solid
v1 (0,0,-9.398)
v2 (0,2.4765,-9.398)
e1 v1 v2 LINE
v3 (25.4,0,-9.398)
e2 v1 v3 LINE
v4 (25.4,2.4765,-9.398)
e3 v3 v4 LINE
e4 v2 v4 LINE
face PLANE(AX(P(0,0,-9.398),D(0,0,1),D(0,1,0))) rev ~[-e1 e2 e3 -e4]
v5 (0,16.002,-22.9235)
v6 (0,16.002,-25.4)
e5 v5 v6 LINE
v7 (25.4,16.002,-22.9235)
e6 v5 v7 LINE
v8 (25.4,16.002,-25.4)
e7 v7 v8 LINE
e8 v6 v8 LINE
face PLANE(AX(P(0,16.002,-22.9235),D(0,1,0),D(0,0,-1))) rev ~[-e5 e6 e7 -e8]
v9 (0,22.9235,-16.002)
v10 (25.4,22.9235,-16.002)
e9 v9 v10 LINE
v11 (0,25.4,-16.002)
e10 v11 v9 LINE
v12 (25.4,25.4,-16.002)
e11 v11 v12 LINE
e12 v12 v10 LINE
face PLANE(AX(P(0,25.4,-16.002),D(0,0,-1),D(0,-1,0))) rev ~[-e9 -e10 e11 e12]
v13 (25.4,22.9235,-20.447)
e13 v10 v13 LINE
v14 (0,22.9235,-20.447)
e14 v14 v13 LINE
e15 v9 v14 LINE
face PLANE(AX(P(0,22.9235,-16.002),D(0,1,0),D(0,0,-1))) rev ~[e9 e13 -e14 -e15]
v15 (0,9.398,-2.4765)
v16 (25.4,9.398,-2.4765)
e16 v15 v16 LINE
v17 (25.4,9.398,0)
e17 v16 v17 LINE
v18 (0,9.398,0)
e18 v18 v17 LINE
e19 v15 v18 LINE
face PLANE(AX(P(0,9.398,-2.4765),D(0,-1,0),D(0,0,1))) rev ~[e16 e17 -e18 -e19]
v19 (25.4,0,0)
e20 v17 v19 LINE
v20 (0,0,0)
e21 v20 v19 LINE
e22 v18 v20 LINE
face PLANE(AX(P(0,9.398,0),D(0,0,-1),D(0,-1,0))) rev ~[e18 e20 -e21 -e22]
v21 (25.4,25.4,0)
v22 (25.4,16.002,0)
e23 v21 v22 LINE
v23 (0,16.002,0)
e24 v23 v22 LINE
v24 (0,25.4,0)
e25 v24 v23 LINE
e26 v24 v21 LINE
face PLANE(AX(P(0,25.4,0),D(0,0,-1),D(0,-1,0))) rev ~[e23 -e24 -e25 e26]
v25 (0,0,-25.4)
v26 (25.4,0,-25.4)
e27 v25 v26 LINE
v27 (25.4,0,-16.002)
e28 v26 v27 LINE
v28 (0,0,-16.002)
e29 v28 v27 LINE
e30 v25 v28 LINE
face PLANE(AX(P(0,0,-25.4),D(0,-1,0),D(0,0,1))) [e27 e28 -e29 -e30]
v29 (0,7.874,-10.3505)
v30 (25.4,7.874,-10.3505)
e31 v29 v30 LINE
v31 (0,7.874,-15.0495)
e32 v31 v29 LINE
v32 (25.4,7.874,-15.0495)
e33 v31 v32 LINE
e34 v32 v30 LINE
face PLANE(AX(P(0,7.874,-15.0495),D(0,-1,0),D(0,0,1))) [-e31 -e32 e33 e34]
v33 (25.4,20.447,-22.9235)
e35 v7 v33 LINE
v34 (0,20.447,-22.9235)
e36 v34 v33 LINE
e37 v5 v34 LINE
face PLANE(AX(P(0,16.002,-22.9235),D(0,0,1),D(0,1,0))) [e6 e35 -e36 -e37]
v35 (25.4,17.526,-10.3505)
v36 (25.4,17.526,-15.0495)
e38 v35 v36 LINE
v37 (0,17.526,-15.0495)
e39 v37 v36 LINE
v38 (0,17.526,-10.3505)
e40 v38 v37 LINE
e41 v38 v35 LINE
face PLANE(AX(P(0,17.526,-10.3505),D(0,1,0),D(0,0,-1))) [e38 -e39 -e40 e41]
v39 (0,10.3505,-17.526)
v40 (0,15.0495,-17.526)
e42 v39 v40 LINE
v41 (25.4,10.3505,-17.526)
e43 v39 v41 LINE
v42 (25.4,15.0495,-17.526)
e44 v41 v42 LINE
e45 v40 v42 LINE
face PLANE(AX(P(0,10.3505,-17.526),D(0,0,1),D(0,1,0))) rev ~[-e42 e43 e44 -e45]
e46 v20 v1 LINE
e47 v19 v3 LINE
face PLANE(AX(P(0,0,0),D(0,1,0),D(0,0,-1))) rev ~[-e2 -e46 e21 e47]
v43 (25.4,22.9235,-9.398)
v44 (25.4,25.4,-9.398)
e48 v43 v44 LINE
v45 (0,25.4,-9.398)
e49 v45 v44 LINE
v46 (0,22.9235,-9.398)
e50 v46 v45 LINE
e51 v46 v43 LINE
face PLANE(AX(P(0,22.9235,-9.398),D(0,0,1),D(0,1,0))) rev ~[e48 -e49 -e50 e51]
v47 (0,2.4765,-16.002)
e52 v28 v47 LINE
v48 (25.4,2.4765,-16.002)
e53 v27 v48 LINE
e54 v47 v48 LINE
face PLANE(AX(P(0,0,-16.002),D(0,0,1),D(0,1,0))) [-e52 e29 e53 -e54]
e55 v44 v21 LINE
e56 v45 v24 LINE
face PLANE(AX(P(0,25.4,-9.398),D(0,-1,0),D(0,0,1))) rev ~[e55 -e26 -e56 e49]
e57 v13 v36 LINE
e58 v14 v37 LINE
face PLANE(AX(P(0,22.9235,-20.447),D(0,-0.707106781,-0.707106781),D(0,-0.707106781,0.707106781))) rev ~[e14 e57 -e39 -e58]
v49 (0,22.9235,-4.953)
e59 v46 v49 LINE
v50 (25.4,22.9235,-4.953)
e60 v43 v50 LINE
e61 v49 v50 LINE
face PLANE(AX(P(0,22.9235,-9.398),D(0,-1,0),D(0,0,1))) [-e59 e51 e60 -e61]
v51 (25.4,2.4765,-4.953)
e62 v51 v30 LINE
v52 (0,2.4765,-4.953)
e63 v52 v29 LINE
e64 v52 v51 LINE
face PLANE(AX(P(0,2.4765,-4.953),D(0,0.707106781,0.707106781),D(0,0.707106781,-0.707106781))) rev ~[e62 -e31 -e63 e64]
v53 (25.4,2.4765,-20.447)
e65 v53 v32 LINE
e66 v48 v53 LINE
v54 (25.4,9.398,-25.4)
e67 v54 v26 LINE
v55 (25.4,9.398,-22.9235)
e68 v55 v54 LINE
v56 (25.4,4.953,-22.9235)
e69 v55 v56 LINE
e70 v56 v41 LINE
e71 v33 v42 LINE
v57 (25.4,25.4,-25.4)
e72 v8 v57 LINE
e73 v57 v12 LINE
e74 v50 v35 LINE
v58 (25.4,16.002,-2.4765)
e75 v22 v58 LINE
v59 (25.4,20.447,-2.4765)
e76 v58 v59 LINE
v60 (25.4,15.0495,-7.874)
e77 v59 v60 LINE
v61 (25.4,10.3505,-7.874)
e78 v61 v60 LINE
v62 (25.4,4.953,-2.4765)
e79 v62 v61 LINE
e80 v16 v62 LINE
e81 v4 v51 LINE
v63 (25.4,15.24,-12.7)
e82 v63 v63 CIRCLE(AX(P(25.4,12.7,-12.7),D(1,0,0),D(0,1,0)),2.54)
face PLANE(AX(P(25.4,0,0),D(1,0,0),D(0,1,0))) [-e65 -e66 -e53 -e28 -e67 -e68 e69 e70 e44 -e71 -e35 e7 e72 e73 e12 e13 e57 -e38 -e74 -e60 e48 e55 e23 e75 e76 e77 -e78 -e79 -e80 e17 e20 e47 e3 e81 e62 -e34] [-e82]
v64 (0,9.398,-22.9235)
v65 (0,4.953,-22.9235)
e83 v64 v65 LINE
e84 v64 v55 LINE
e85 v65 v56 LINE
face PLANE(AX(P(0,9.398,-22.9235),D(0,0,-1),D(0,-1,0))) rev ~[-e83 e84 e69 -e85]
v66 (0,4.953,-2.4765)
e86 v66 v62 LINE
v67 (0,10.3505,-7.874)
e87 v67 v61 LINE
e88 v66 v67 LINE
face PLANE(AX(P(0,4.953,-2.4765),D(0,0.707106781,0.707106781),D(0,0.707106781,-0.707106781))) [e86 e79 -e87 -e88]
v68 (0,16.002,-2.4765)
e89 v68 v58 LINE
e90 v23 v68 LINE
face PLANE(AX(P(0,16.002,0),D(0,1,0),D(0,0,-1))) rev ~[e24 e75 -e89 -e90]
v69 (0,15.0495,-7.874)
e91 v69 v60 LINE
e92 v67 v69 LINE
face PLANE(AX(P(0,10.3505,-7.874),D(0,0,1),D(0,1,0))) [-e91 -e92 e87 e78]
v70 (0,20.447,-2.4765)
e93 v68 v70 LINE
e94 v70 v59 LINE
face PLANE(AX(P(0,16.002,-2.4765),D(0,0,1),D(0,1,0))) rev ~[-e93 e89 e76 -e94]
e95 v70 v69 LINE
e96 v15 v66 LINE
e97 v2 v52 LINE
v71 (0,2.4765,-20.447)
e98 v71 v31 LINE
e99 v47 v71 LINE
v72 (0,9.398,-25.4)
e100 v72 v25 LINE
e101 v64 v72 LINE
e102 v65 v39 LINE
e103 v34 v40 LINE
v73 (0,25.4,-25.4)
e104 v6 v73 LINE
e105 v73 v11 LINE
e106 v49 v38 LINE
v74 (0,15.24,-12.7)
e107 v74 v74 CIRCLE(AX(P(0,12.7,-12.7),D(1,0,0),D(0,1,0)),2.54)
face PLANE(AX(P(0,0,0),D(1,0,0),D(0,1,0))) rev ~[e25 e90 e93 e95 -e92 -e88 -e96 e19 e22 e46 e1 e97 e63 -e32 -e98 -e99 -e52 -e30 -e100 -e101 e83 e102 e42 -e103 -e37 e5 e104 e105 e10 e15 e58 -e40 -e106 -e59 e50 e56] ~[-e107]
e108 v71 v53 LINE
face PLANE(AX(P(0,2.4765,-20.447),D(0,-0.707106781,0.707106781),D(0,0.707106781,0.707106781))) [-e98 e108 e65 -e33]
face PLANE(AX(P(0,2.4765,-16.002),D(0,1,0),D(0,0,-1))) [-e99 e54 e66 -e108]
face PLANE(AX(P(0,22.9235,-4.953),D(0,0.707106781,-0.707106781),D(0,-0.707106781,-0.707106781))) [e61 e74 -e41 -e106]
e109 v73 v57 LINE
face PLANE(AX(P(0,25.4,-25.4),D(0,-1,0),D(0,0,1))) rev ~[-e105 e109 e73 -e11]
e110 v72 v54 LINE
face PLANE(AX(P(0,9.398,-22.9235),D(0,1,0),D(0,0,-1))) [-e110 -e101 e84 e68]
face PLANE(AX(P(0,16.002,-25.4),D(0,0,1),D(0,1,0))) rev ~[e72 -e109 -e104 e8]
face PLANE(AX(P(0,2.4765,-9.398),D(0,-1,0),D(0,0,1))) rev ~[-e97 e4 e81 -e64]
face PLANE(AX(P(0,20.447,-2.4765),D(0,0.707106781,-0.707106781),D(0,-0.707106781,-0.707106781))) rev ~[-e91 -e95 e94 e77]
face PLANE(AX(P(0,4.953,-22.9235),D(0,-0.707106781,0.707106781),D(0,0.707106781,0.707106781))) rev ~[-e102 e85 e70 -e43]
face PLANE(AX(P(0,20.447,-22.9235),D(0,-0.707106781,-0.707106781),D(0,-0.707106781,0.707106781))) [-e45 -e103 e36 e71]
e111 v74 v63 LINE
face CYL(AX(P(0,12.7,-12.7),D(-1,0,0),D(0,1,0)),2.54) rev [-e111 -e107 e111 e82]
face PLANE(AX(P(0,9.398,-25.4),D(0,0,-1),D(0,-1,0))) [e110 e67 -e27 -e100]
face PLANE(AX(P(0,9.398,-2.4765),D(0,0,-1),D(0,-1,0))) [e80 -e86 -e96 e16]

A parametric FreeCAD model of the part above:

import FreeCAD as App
import Part
import Sketcher
from FreeCAD import Vector
Q = App.Units.Quantity


def add_polygon(sketch, points):
    """Adds a closed chain of lines whose ends are joined by coincident constraints."""
    first, n = sketch.GeometryCount, len(points)
    for a, b in zip(points, points[1:] + points[:1]):
        sketch.addGeometry(Part.LineSegment(App.Vector(*a, 0), App.Vector(*b, 0)), False)
    for i in range(n):
        sketch.addConstraint(Sketcher.Constraint("Coincident", first + i, 2, first + (i + 1) % n, 1))

doc = App.newDocument("Part")
body = doc.addObject("PartDesign::Body", "Body")

sketch1 = body.newObject("Sketcher::SketchObject", "Sketch")
sketch1.AttachmentSupport = (doc.getObject("YZ_Plane"), [""])
sketch1.MapMode = "FlatFace"
add_polygon(sketch1, [(9.4, 0), (0, 0), (0, -9.4), (2.5, -9.4), (2.5, -5), (7.9, -10.4), (7.9, -15), (2.5, -20.4), (2.5, -16), (0, -16), (0, -25.4), (9.4, -25.4), (9.4, -22.9), (5, -22.9), (10.4, -17.5), (15, -17.5), (20.4, -22.9), (16, -22.9), (16, -25.4), (25.4, -25.4), (25.4, -16), (22.9, -16), (22.9, -20.4), (17.5, -15), (17.5, -10.4), (22.9, -5), (22.9, -9.4), (25.4, -9.4), (25.4, 0), (16, 0), (16, -2.5), (20.4, -2.5), (15, -7.9), (10.4, -7.9), (5, -2.5), (9.4, -2.5)])
sketch1.addGeometry(Part.Circle(Vector(12.7, -12.7, 0), Vector(0, 0, 1), 2.5), False)
sketch1.addConstraint([
    Sketcher.Constraint("Horizontal", 0),
    Sketcher.Constraint("Vertical", 1),
    Sketcher.Constraint("Horizontal", 2),
    Sketcher.Constraint("Vertical", 3),
    Sketcher.Constraint("Vertical", 5),
    Sketcher.Constraint("Vertical", 7),
    Sketcher.Constraint("Horizontal", 8),
    Sketcher.Constraint("Vertical", 9),
    Sketcher.Constraint("Horizontal", 10),
    Sketcher.Constraint("Vertical", 11),
    Sketcher.Constraint("Horizontal", 12),
    Sketcher.Constraint("Horizontal", 14),
    Sketcher.Constraint("Horizontal", 16),
    Sketcher.Constraint("Vertical", 17),
    Sketcher.Constraint("Horizontal", 18),
    Sketcher.Constraint("Vertical", 19),
    Sketcher.Constraint("Horizontal", 20),
    Sketcher.Constraint("Vertical", 21),
    Sketcher.Constraint("Vertical", 23),
    Sketcher.Constraint("Vertical", 25),
    Sketcher.Constraint("Horizontal", 26),
    Sketcher.Constraint("Vertical", 27),
    Sketcher.Constraint("Horizontal", 28),
    Sketcher.Constraint("Vertical", 29),
    Sketcher.Constraint("Horizontal", 30),
    Sketcher.Constraint("Horizontal", 32),
    Sketcher.Constraint("Horizontal", 34),
    Sketcher.Constraint("Vertical", 35),
    Sketcher.Constraint("Coincident", 0, 2, -1, 1),
    Sketcher.Constraint("PointOnObject", 8, 2, -2),
    Sketcher.Constraint("PointOnObject", 27, 2, -1),
    Sketcher.Constraint("Perpendicular", 4, 6),
    Sketcher.Constraint("Parallel", 6, 13),
    Sketcher.Constraint("Perpendicular", 13, 15),
    Sketcher.Constraint("Parallel", 15, 22),
    Sketcher.Constraint("Perpendicular", 22, 24),
    Sketcher.Constraint("Parallel", 24, 31),
    Sketcher.Constraint("Perpendicular", 31, 33),
    Sketcher.Constraint("Horizontal", 12, 2, 15, 2),
    Sketcher.Constraint("Horizontal", 10, 2, 17, 2),
    Sketcher.Constraint("Horizontal", 8, 2, 19, 2),
    Sketcher.Constraint("Horizontal", 6, 2, 21, 2),
    Sketcher.Constraint("Horizontal", 5, 2, 22, 2),
    Sketcher.Constraint("Horizontal", 4, 2, 23, 2),
    Sketcher.Constraint("Horizontal", 3, 2, 24, 2),
    Sketcher.Constraint("Horizontal", 2, 2, 25, 2),
    Sketcher.Constraint("Horizontal", 30, 2, 33, 2),
    Sketcher.Constraint("Vertical", 3, 2, 6, 2),
    Sketcher.Constraint("Vertical", 21, 2, 24, 2),
    Sketcher.Constraint("Vertical", 19, 2, 26, 2),
    Sketcher.Constraint("Vertical", 17, 2, 28, 2),
    Sketcher.Constraint("Vertical", 15, 2, 30, 2),
    Sketcher.Constraint("Vertical", 14, 2, 31, 2),
    Sketcher.Constraint("Vertical", 13, 2, 32, 2),
    Sketcher.Constraint("Vertical", 11, 2, 34, 2),
    Sketcher.Constraint("Equal", 12, 16),
    Sketcher.Constraint("Equal", 10, 18),
    Sketcher.Constraint("Equal", 8, 20),
    Sketcher.Constraint("Equal", 28, 1),
    Sketcher.Constraint("Equal", 34, 3),
    Sketcher.Constraint("Equal", 32, 5),
    Sketcher.Constraint("Equal", 3, 7),
    Sketcher.Constraint("Equal", 1, 9),
    Sketcher.Constraint("Equal", 26, 11),
    Sketcher.Constraint("Equal", 17, 29),
    Sketcher.Constraint("Equal", 6, 13),
    Sketcher.Constraint("Diameter", 36, Q("0.2 in")),
    Sketcher.Constraint("DistanceY", 9, 2, -1, 1, Q("1 in")),
    Sketcher.Constraint("DistanceX", 0, 2, 0, 1, Q("0.37 in")),
    Sketcher.Constraint("DistanceX", 12, 2, 12, 1, Q("0.175 in")),
    Sketcher.Constraint("DistanceX", 2, 1, 2, 2, Q("0.0975 in")),
    Sketcher.Constraint("DistanceX", -1, 1, 36, 3, Q("0.5 in")),
    Sketcher.Constraint("DistanceY", 36, 3, -1, 1, Q("0.5 in")),
    Sketcher.Constraint("DistanceX", 14, 1, 14, 2, Q("0.185 in")),
])
pad1 = body.newObject("PartDesign::Pad", "Pad")
pad1.Profile = sketch1
pad1.Length = Q("1 in")

doc.recompute()
